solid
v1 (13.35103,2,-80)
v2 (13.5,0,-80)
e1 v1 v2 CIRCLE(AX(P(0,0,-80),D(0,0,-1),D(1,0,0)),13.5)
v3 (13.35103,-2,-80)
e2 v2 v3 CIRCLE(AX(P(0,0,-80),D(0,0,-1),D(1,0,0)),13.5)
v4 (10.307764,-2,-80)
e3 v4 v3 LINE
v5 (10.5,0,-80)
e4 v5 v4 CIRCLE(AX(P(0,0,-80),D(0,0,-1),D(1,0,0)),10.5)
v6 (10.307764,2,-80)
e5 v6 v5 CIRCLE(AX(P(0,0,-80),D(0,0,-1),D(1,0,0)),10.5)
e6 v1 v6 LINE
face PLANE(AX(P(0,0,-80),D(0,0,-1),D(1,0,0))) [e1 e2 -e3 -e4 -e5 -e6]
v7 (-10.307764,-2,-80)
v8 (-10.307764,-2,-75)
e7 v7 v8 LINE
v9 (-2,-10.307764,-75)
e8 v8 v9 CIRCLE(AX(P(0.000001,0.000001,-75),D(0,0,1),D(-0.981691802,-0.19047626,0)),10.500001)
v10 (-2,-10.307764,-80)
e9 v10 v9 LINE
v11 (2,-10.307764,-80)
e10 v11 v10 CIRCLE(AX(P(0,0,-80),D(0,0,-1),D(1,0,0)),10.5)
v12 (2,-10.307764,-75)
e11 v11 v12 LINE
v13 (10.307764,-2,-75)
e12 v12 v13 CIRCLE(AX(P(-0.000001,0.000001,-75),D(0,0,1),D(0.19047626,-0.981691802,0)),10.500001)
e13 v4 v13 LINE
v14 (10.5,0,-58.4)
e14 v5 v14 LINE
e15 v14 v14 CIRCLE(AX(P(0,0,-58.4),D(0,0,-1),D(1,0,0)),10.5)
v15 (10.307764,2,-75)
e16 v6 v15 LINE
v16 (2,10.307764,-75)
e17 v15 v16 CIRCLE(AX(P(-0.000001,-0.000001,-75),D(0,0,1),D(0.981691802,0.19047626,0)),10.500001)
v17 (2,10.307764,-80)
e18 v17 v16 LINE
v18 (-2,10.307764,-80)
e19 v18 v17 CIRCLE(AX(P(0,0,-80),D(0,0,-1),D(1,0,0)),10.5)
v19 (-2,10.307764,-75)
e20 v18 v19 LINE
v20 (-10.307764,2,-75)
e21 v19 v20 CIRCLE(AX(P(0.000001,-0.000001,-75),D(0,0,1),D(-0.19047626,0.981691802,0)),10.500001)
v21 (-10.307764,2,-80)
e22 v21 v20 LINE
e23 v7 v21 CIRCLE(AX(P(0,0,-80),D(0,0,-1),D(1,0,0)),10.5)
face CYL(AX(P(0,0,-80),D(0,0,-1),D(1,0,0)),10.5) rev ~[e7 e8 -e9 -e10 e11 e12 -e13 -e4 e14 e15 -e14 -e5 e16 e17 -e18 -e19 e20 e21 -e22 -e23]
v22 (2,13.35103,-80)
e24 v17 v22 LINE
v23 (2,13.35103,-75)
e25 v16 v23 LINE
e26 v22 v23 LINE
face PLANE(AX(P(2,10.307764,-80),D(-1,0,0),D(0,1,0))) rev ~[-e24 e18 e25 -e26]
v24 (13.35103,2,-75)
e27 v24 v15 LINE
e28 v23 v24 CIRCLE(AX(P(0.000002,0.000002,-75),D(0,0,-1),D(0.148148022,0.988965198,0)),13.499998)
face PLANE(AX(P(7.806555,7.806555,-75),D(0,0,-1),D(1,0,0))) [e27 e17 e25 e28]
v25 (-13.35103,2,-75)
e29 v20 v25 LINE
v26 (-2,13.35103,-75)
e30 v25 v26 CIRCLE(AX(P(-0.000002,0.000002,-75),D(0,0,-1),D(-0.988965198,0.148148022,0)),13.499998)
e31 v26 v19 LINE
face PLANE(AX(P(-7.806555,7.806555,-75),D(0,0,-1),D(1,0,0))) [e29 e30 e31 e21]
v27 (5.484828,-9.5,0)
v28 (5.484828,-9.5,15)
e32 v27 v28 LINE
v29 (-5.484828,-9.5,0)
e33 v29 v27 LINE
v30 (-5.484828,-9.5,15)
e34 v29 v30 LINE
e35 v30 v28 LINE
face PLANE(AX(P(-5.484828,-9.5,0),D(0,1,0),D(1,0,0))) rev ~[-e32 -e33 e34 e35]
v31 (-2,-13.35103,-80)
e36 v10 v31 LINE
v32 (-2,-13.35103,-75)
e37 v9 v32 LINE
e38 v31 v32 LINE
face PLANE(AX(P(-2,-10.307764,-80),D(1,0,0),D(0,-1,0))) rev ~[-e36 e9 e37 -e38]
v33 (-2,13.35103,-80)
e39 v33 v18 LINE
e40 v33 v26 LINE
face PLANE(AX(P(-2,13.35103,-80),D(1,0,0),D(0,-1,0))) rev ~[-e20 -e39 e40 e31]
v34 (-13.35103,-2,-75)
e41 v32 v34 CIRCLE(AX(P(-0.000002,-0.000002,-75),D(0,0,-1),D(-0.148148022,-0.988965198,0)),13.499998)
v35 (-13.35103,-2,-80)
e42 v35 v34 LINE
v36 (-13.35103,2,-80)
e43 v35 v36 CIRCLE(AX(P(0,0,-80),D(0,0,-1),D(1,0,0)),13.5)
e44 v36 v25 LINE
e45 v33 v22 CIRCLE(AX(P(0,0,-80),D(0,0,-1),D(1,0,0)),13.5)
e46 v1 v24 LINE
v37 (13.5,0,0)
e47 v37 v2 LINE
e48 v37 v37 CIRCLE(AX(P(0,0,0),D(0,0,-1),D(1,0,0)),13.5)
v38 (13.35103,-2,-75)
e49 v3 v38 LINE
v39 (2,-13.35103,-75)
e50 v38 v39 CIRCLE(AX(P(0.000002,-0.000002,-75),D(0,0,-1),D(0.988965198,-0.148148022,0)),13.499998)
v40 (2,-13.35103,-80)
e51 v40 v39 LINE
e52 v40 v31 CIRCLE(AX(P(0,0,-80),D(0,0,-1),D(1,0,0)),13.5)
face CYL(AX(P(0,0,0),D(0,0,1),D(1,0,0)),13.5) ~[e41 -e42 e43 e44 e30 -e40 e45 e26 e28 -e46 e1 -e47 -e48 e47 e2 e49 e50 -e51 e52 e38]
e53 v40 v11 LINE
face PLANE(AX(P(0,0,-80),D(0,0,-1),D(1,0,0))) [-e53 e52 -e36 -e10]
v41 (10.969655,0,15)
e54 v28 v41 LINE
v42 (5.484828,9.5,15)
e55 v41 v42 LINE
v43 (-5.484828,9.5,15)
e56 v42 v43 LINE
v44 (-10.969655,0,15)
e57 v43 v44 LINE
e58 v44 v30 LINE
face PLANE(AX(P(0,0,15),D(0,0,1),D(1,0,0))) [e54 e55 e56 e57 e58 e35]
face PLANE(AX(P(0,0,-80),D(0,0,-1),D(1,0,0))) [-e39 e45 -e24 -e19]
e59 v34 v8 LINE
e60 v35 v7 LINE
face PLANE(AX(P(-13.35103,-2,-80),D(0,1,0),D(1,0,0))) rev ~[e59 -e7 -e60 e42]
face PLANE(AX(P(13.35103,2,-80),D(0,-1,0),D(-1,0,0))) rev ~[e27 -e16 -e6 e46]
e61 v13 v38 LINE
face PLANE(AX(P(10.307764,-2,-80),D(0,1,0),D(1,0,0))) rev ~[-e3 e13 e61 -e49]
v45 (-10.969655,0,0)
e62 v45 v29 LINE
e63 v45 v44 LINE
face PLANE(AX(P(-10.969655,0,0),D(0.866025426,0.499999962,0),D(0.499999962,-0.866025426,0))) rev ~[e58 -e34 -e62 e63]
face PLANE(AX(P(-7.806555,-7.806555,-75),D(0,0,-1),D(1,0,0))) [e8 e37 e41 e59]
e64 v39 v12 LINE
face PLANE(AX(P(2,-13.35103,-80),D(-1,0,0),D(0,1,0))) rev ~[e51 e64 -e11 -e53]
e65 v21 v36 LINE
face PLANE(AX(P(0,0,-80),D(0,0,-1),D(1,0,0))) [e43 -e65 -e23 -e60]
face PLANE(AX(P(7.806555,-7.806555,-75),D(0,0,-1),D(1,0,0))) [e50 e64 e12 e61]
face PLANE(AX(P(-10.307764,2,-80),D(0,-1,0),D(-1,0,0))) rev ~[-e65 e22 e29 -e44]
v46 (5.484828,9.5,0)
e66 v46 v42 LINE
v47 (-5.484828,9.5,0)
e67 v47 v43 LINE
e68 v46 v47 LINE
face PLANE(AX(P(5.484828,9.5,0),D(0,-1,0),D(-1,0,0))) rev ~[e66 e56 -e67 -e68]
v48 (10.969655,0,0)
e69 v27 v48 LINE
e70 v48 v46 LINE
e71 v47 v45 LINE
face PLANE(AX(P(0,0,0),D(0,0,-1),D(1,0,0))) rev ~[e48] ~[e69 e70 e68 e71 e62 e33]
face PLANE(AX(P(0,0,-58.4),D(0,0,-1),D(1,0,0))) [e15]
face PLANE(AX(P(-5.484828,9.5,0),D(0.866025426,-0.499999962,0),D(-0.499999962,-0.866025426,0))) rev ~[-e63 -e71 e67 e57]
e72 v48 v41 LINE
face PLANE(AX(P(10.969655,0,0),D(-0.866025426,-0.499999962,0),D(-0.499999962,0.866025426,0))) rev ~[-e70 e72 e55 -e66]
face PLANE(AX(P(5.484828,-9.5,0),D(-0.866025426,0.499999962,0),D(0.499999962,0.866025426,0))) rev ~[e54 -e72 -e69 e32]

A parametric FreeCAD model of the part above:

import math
import FreeCAD as App
import Part
import Sketcher
Q = App.Units.Quantity


def add_polygon(sketch, points):
    """Adds a closed chain of lines whose ends are joined by coincident constraints."""
    first, n = sketch.GeometryCount, len(points)
    for a, b in zip(points, points[1:] + points[:1]):
        sketch.addGeometry(Part.LineSegment(App.Vector(*a, 0), App.Vector(*b, 0)), False)
    for i in range(n):
        sketch.addConstraint(Sketcher.Constraint("Coincident", first + i, 2, first + (i + 1) % n, 1))

doc = App.newDocument("Part")
body = doc.addObject("PartDesign::Body", "Body")

# Sketch on XY plane
sketch1 = doc.addObject("Sketcher::SketchObject", "Sketch")
body.addObject(sketch1)
sketch1.AttachmentSupport = (doc.XY_Plane, [""])
sketch1.MapMode = "FlatFace"
add_polygon(sketch1, [(-5.484828, 9.5), (-10.969655, 0), (-5.484828, -9.5), (5.484828, -9.5), (10.969655, 0), (5.484828, 9.5)])  # lines 0-5
sketch1.addConstraint([
    Sketcher.Constraint("Horizontal", 2),
    Sketcher.Constraint("Horizontal", 5),
    Sketcher.Constraint("Symmetric", 0, 2, 3, 2, -1, 1),
    Sketcher.Constraint("Symmetric", 1, 2, 4, 2, -1, 1),
    Sketcher.Constraint("PointOnObject", 0, 2, -1),
    Sketcher.Constraint("Parallel", 0, 3),
    Sketcher.Constraint("Vertical", 2, 2, 4, 2),
    Sketcher.Constraint("Angle", 0, Q("-119.999997 deg")),
    Sketcher.Constraint("DistanceY", 2, 2, 4, 2, 19.0),
    Sketcher.Constraint("DistanceX", 2, 1, 2, 2, 10.969656),
])
pad1 = doc.addObject("PartDesign::Pad", "Pad")
body.addObject(pad1)
pad1.Profile = sketch1
pad1.Length = 15

# Sketch on XY plane
sketch2 = doc.addObject("Sketcher::SketchObject", "Sketch001")
body.addObject(sketch2)
sketch2.AttachmentSupport = (doc.XY_Plane, [""])
sketch2.MapMode = "FlatFace"
sketch2.addGeometry(Part.Circle(App.Vector(0, 0, 0), App.Vector(0, 0, 1), 13.5), False)
sketch2.addConstraint([
    Sketcher.Constraint("Coincident", 0, 3, -1, 1),
    Sketcher.Constraint("Diameter", 0, 27.0),
])
pad2 = doc.addObject("PartDesign::Pad", "Pad001")
body.addObject(pad2)
pad2.Profile = sketch2
pad2.Length = 80
pad2.Reversed = True

# Sketch on XY plane
sketch3 = doc.addObject("Sketcher::SketchObject", "Sketch002")
body.addObject(sketch3)
sketch3.AttachmentSupport = (doc.XY_Plane, [""])
sketch3.MapMode = "FlatFace"
sketch3.AttachmentOffset = App.Placement(App.Vector(0, 0, -80), App.Rotation())
sketch3.addGeometry(Part.Circle(App.Vector(0, 0, 0), App.Vector(0, 0, 1), 10.5), False)
sketch3.addConstraint([
    Sketcher.Constraint("Coincident", 0, 3, -1, 1),
    Sketcher.Constraint("Diameter", 0, 21.0),
])
pocket1 = doc.addObject("PartDesign::Pocket", "Pocket")
body.addObject(pocket1)
pocket1.Profile = sketch3
pocket1.Length = 21.6
pocket1.Reversed = True

# Sketch on XY plane
sketch4 = doc.addObject("Sketcher::SketchObject", "Sketch003")
body.addObject(sketch4)
sketch4.AttachmentSupport = (doc.XY_Plane, [""])
sketch4.MapMode = "FlatFace"
sketch4.AttachmentOffset = App.Placement(App.Vector(0, 0, -80), App.Rotation())
sketch4.addGeometry([
    Part.ArcOfCircle(Part.Circle(App.Vector(-0.000001, -0.000001, 0), App.Vector(0, 0, 1), 10.500001), math.radians(10.980579), math.radians(79.019421)),  # 0
    Part.LineSegment(App.Vector(2, 10.307764, 0), App.Vector(2, 13.35103, 0)),  # 1
    Part.ArcOfCircle(Part.Circle(App.Vector(0.000002, 0.000002, 0), App.Vector(0, 0, 1), 13.499998), math.radians(8.519617), math.radians(81.480383)),  # 2
    Part.LineSegment(App.Vector(13.35103, 2, 0), App.Vector(10.307764, 2, 0)),  # 3
    Part.LineSegment(App.Vector(-10.307764, 2, 0), App.Vector(-13.35103, 2, 0)),  # 4
    Part.ArcOfCircle(Part.Circle(App.Vector(-0.000002, 0.000002, 0), App.Vector(0, 0, 1), 13.499998), math.radians(98.519617), math.radians(171.480383)),  # 5
    Part.LineSegment(App.Vector(-2, 13.35103, 0), App.Vector(-2, 10.307764, 0)),  # 6
    Part.ArcOfCircle(Part.Circle(App.Vector(0.000001, -0.000001, 0), App.Vector(0, 0, 1), 10.500001), math.radians(100.980579), math.radians(169.019421)),  # 7
    Part.ArcOfCircle(Part.Circle(App.Vector(-0.000002, -0.000002, 0), App.Vector(0, 0, 1), 13.499998), math.radians(-171.480383), math.radians(-98.519617)),  # 8
    Part.LineSegment(App.Vector(-13.35103, -2, 0), App.Vector(-10.307764, -2, 0)),  # 9
    Part.ArcOfCircle(Part.Circle(App.Vector(0.000001, 0.000001, 0), App.Vector(0, 0, 1), 10.500001), math.radians(-169.019421), math.radians(-100.980579)),  # 10
    Part.LineSegment(App.Vector(-2, -10.307764, 0), App.Vector(-2, -13.35103, 0)),  # 11
    Part.ArcOfCircle(Part.Circle(App.Vector(0.000002, -0.000002, 0), App.Vector(0, 0, 1), 13.499998), math.radians(-81.480383), math.radians(-8.519617)),  # 12
    Part.LineSegment(App.Vector(2, -13.35103, 0), App.Vector(2, -10.307764, 0)),  # 13
    Part.ArcOfCircle(Part.Circle(App.Vector(-0.000001, 0.000001, 0), App.Vector(0, 0, 1), 10.500001), math.radians(-79.019421), math.radians(-10.980579)),  # 14
    Part.LineSegment(App.Vector(10.307764, -2, 0), App.Vector(13.35103, -2, 0)),  # 15
], False)
sketch4.addConstraint([
    Sketcher.Constraint("Coincident", 0, 2, 1, 1),
    Sketcher.Constraint("Coincident", 1, 2, 2, 2),
    Sketcher.Constraint("Coincident", 2, 1, 3, 1),
    Sketcher.Constraint("Coincident", 3, 2, 0, 1),
    Sketcher.Constraint("Coincident", 4, 2, 5, 2),
    Sketcher.Constraint("Coincident", 5, 1, 6, 1),
    Sketcher.Constraint("Coincident", 6, 2, 7, 1),
    Sketcher.Constraint("Coincident", 7, 2, 4, 1),
    Sketcher.Constraint("Coincident", 8, 1, 9, 1),
    Sketcher.Constraint("Coincident", 9, 2, 10, 1),
    Sketcher.Constraint("Coincident", 10, 2, 11, 1),
    Sketcher.Constraint("Coincident", 11, 2, 8, 2),
    Sketcher.Constraint("Coincident", 12, 1, 13, 1),
    Sketcher.Constraint("Coincident", 13, 2, 14, 1),
    Sketcher.Constraint("Coincident", 14, 2, 15, 1),
    Sketcher.Constraint("Coincident", 15, 2, 12, 2),
    Sketcher.Constraint("Vertical", 1),
    Sketcher.Constraint("Horizontal", 3),
    Sketcher.Constraint("Horizontal", 4),
    Sketcher.Constraint("Vertical", 6),
    Sketcher.Constraint("Horizontal", 9),
    Sketcher.Constraint("Vertical", 11),
    Sketcher.Constraint("Vertical", 13),
    Sketcher.Constraint("Horizontal", 15),
    Sketcher.Constraint("Coincident", 0, 3, -1, 1),
    Sketcher.Constraint("Coincident", 2, 3, -1, 1),
    Sketcher.Constraint("Coincident", 5, 3, -1, 1),
    Sketcher.Constraint("Coincident", 7, 3, -1, 1),
    Sketcher.Constraint("Coincident", 8, 3, -1, 1),
    Sketcher.Constraint("Coincident", 10, 3, -1, 1),
    Sketcher.Constraint("Coincident", 12, 3, -1, 1),
    Sketcher.Constraint("Coincident", 14, 3, -1, 1),
    Sketcher.Constraint("Equal", 2, 5),
    Sketcher.Constraint("Equal", 0, 7),
    Sketcher.Constraint("Equal", 5, 8),
    Sketcher.Constraint("Equal", 7, 10),
    Sketcher.Constraint("Equal", 8, 12),
    Sketcher.Constraint("Equal", 10, 14),
    Sketcher.Constraint("Horizontal", 3, 2, 4, 2),
    Sketcher.Constraint("Horizontal", 1, 2, 5, 1),
    Sketcher.Constraint("Horizontal", 11, 2, 12, 1),
    Sketcher.Constraint("Horizontal", 9, 2, 14, 2),
    Sketcher.Constraint("Vertical", 4, 2, 8, 1),
    Sketcher.Constraint("Vertical", 6, 2, 10, 2),
    Sketcher.Constraint("Equal", 15, 1),
    Sketcher.Constraint("Radius", 0, 10.500001),
    Sketcher.Constraint("DistanceX", -1, 1, 0, 2, 2.0),
    Sketcher.Constraint("Radius", 2, 13.499998),
])
pocket2 = doc.addObject("PartDesign::Pocket", "Pocket001")
body.addObject(pocket2)
pocket2.Profile = sketch4
pocket2.Length = 5
pocket2.Reversed = True

doc.recompute()
